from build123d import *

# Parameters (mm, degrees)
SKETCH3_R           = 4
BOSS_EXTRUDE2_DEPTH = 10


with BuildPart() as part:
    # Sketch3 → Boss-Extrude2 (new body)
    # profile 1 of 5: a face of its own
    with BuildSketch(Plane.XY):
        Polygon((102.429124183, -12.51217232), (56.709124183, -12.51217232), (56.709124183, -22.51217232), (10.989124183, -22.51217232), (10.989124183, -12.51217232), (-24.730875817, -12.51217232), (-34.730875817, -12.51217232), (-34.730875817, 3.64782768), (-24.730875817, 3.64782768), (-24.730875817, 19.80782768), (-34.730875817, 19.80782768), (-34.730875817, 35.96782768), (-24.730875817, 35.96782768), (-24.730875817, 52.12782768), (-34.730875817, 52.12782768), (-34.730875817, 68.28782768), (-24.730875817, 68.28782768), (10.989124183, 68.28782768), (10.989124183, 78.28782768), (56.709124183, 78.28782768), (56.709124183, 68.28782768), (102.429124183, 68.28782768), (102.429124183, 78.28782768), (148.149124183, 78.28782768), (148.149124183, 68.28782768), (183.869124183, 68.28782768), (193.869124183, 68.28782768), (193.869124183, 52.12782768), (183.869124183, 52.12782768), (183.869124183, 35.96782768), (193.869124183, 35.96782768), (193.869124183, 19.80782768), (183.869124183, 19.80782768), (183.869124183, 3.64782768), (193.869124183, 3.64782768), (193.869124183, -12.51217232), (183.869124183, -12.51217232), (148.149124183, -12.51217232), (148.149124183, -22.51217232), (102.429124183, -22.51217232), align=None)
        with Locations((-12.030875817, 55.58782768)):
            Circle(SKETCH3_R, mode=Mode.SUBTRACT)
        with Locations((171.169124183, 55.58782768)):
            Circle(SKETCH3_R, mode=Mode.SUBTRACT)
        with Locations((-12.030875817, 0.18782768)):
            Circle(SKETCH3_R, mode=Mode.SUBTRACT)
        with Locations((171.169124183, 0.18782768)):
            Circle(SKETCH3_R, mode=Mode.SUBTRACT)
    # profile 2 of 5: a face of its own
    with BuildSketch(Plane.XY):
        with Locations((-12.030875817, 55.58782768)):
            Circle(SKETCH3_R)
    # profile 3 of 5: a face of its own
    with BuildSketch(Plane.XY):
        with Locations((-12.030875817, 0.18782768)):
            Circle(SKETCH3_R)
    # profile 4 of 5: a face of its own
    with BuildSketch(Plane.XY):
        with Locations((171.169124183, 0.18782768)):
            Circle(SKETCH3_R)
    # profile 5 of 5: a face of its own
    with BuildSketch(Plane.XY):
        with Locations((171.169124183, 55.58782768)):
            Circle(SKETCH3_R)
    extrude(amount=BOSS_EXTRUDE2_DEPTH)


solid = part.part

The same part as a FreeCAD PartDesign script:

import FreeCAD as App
import Part
import Sketcher
Q = App.Units.Quantity

doc = App.newDocument("Part")
body = doc.addObject("PartDesign::Body", "Body")

# Sketch on XY plane
sketch1 = body.newObject("Sketcher::SketchObject", "Sketch")
sketch1.AttachmentSupport = (doc.getObject("XY_Plane"), [""])
sketch1.MapMode = "FlatFace"
sketch1.addGeometry([
    Part.LineSegment(App.Vector(57, -13, 0), App.Vector(102, -13, 0)),  # 0
    Part.LineSegment(App.Vector(102, -13, 0), App.Vector(102, -23, 0)),  # 1
    Part.LineSegment(App.Vector(102, -23, 0), App.Vector(148, -23, 0)),  # 2
    Part.LineSegment(App.Vector(148, -23, 0), App.Vector(148, -13, 0)),  # 3
    Part.LineSegment(App.Vector(148, -13, 0), App.Vector(194, -13, 0)),  # 4
    Part.LineSegment(App.Vector(194, -13, 0), App.Vector(194, 4, 0)),  # 5
    Part.LineSegment(App.Vector(194, 4, 0), App.Vector(184, 4, 0)),  # 6
    Part.LineSegment(App.Vector(184, 4, 0), App.Vector(184, 20, 0)),  # 7
    Part.LineSegment(App.Vector(184, 20, 0), App.Vector(194, 20, 0)),  # 8
    Part.LineSegment(App.Vector(194, 20, 0), App.Vector(194, 36, 0)),  # 9
    Part.LineSegment(App.Vector(194, 36, 0), App.Vector(184, 36, 0)),  # 10
    Part.LineSegment(App.Vector(184, 36, 0), App.Vector(184, 52, 0)),  # 11
    Part.LineSegment(App.Vector(184, 52, 0), App.Vector(194, 52, 0)),  # 12
    Part.LineSegment(App.Vector(194, 52, 0), App.Vector(194, 68, 0)),  # 13
    Part.LineSegment(App.Vector(194, 68, 0), App.Vector(148, 68, 0)),  # 14
    Part.LineSegment(App.Vector(148, 68, 0), App.Vector(148, 78, 0)),  # 15
    Part.LineSegment(App.Vector(148, 78, 0), App.Vector(102, 78, 0)),  # 16
    Part.LineSegment(App.Vector(102, 78, 0), App.Vector(102, 68, 0)),  # 17
    Part.LineSegment(App.Vector(102, 68, 0), App.Vector(57, 68, 0)),  # 18
    Part.LineSegment(App.Vector(57, 68, 0), App.Vector(57, 78, 0)),  # 19
    Part.LineSegment(App.Vector(57, 78, 0), App.Vector(11, 78, 0)),  # 20
    Part.LineSegment(App.Vector(11, 78, 0), App.Vector(11, 68, 0)),  # 21
    Part.LineSegment(App.Vector(11, 68, 0), App.Vector(-35, 68, 0)),  # 22
    Part.LineSegment(App.Vector(-35, 68, 0), App.Vector(-35, 52, 0)),  # 23
    Part.LineSegment(App.Vector(-35, 52, 0), App.Vector(-25, 52, 0)),  # 24
    Part.LineSegment(App.Vector(-25, 52, 0), App.Vector(-25, 36, 0)),  # 25
    Part.LineSegment(App.Vector(-25, 36, 0), App.Vector(-35, 36, 0)),  # 26
    Part.LineSegment(App.Vector(-35, 36, 0), App.Vector(-35, 20, 0)),  # 27
    Part.LineSegment(App.Vector(-35, 20, 0), App.Vector(-25, 20, 0)),  # 28
    Part.LineSegment(App.Vector(-25, 20, 0), App.Vector(-25, 4, 0)),  # 29
    Part.LineSegment(App.Vector(-25, 4, 0), App.Vector(-35, 4, 0)),  # 30
    Part.LineSegment(App.Vector(-35, 4, 0), App.Vector(-35, -13, 0)),  # 31
    Part.LineSegment(App.Vector(-35, -13, 0), App.Vector(11, -13, 0)),  # 32
    Part.LineSegment(App.Vector(11, -13, 0), App.Vector(11, -23, 0)),  # 33
    Part.LineSegment(App.Vector(11, -23, 0), App.Vector(57, -23, 0)),  # 34
    Part.LineSegment(App.Vector(57, -23, 0), App.Vector(57, -13, 0)),  # 35
], False)
sketch1.addConstraint([
    Sketcher.Constraint("Coincident", 0, 2, 1, 1),
    Sketcher.Constraint("Coincident", 1, 2, 2, 1),
    Sketcher.Constraint("Coincident", 2, 2, 3, 1),
    Sketcher.Constraint("Coincident", 3, 2, 4, 1),
    Sketcher.Constraint("Coincident", 4, 2, 5, 1),
    Sketcher.Constraint("Coincident", 5, 2, 6, 1),
    Sketcher.Constraint("Coincident", 6, 2, 7, 1),
    Sketcher.Constraint("Coincident", 7, 2, 8, 1),
    Sketcher.Constraint("Coincident", 8, 2, 9, 1),
    Sketcher.Constraint("Coincident", 9, 2, 10, 1),
    Sketcher.Constraint("Coincident", 10, 2, 11, 1),
    Sketcher.Constraint("Coincident", 11, 2, 12, 1),
    Sketcher.Constraint("Coincident", 12, 2, 13, 1),
    Sketcher.Constraint("Coincident", 13, 2, 14, 1),
    Sketcher.Constraint("Coincident", 14, 2, 15, 1),
    Sketcher.Constraint("Coincident", 15, 2, 16, 1),
    Sketcher.Constraint("Coincident", 16, 2, 17, 1),
    Sketcher.Constraint("Coincident", 17, 2, 18, 1),
    Sketcher.Constraint("Coincident", 18, 2, 19, 1),
    Sketcher.Constraint("Coincident", 19, 2, 20, 1),
    Sketcher.Constraint("Coincident", 20, 2, 21, 1),
    Sketcher.Constraint("Coincident", 21, 2, 22, 1),
    Sketcher.Constraint("Coincident", 22, 2, 23, 1),
    Sketcher.Constraint("Coincident", 23, 2, 24, 1),
    Sketcher.Constraint("Coincident", 24, 2, 25, 1),
    Sketcher.Constraint("Coincident", 25, 2, 26, 1),
    Sketcher.Constraint("Coincident", 26, 2, 27, 1),
    Sketcher.Constraint("Coincident", 27, 2, 28, 1),
    Sketcher.Constraint("Coincident", 28, 2, 29, 1),
    Sketcher.Constraint("Coincident", 29, 2, 30, 1),
    Sketcher.Constraint("Coincident", 30, 2, 31, 1),
    Sketcher.Constraint("Coincident", 31, 2, 32, 1),
    Sketcher.Constraint("Coincident", 32, 2, 33, 1),
    Sketcher.Constraint("Coincident", 33, 2, 34, 1),
    Sketcher.Constraint("Coincident", 34, 2, 35, 1),
    Sketcher.Constraint("Coincident", 35, 2, 0, 1),
    Sketcher.Constraint("Horizontal", 0),
    Sketcher.Constraint("Vertical", 1),
    Sketcher.Constraint("Horizontal", 2),
    Sketcher.Constraint("Vertical", 3),
    Sketcher.Constraint("Horizontal", 4),
    Sketcher.Constraint("Vertical", 5),
    Sketcher.Constraint("Horizontal", 6),
    Sketcher.Constraint("Vertical", 7),
    Sketcher.Constraint("Horizontal", 8),
    Sketcher.Constraint("Vertical", 9),
    Sketcher.Constraint("Horizontal", 10),
    Sketcher.Constraint("Vertical", 11),
    Sketcher.Constraint("Horizontal", 12),
    Sketcher.Constraint("Vertical", 13),
    Sketcher.Constraint("Horizontal", 14),
    Sketcher.Constraint("Vertical", 15),
    Sketcher.Constraint("Horizontal", 16),
    Sketcher.Constraint("Vertical", 17),
    Sketcher.Constraint("Horizontal", 18),
    Sketcher.Constraint("Vertical", 19),
    Sketcher.Constraint("Horizontal", 20),
    Sketcher.Constraint("Vertical", 21),
    Sketcher.Constraint("Horizontal", 22),
    Sketcher.Constraint("Vertical", 23),
    Sketcher.Constraint("Horizontal", 24),
    Sketcher.Constraint("Vertical", 25),
    Sketcher.Constraint("Horizontal", 26),
    Sketcher.Constraint("Vertical", 27),
    Sketcher.Constraint("Horizontal", 28),
    Sketcher.Constraint("Vertical", 29),
    Sketcher.Constraint("Horizontal", 30),
    Sketcher.Constraint("Vertical", 31),
    Sketcher.Constraint("Horizontal", 32),
    Sketcher.Constraint("Vertical", 33),
    Sketcher.Constraint("Horizontal", 34),
    Sketcher.Constraint("Vertical", 35),
    Sketcher.Constraint("Horizontal", 0, 2, 3, 2),
    Sketcher.Constraint("Horizontal", 14, 2, 17, 2),
    Sketcher.Constraint("Horizontal", 16, 2, 19, 2),
    Sketcher.Constraint("Horizontal", 18, 2, 21, 2),
    Sketcher.Constraint("Horizontal", 12, 2, 23, 2),
    Sketcher.Constraint("Horizontal", 10, 2, 25, 2),
    Sketcher.Constraint("Horizontal", 8, 2, 27, 2),
    Sketcher.Constraint("Horizontal", 6, 2, 29, 2),
    Sketcher.Constraint("Horizontal", 4, 2, 31, 2),
    Sketcher.Constraint("Horizontal", 2, 2, 33, 2),
    Sketcher.Constraint("Vertical", 5, 2, 8, 2),
    Sketcher.Constraint("Vertical", 7, 2, 10, 2),
    Sketcher.Constraint("Vertical", 9, 2, 12, 2),
    Sketcher.Constraint("Vertical", 3, 2, 14, 2),
    Sketcher.Constraint("Vertical", 1, 2, 16, 2),
    Sketcher.Constraint("Vertical", 23, 2, 26, 2),
    Sketcher.Constraint("Vertical", 25, 2, 28, 2),
    Sketcher.Constraint("Vertical", 27, 2, 30, 2),
    Sketcher.Constraint("Vertical", 21, 2, 32, 2),
    Sketcher.Constraint("Vertical", 19, 2, 34, 2),
    Sketcher.Constraint("Equal", 0, 2),
    Sketcher.Constraint("Equal", 2, 4),
    Sketcher.Constraint("Equal", 18, 20),
    Sketcher.Constraint("Equal", 20, 22),
    Sketcher.Constraint("Equal", 12, 24),
    Sketcher.Constraint("Equal", 30, 1),
    Sketcher.Constraint("Equal", 5, 7),
    Sketcher.Constraint("Equal", 7, 9),
    Sketcher.Constraint("Equal", 9, 11),
    Sketcher.Constraint("Equal", 11, 13),
    Sketcher.Constraint("Equal", 3, 15),
    Sketcher.Constraint("DistanceX", 6, 2, 6, 1, Q("10 mm")),
    Sketcher.Constraint("DistanceX", 0, 1, 0, 2, Q("45.72 mm")),
    Sketcher.Constraint("DistanceY", 5, 1, 5, 2, Q("16.16 mm")),
    Sketcher.Constraint("DistanceX", -1, 1, 0, 2, Q("102.429124 mm")),
    Sketcher.Constraint("DistanceY", 0, 2, -1, 1, Q("12.512172 mm")),
])
pad1 = body.newObject("PartDesign::Pad", "Pad")
pad1.Profile = sketch1
pad1.Length = 10

doc.recompute()
